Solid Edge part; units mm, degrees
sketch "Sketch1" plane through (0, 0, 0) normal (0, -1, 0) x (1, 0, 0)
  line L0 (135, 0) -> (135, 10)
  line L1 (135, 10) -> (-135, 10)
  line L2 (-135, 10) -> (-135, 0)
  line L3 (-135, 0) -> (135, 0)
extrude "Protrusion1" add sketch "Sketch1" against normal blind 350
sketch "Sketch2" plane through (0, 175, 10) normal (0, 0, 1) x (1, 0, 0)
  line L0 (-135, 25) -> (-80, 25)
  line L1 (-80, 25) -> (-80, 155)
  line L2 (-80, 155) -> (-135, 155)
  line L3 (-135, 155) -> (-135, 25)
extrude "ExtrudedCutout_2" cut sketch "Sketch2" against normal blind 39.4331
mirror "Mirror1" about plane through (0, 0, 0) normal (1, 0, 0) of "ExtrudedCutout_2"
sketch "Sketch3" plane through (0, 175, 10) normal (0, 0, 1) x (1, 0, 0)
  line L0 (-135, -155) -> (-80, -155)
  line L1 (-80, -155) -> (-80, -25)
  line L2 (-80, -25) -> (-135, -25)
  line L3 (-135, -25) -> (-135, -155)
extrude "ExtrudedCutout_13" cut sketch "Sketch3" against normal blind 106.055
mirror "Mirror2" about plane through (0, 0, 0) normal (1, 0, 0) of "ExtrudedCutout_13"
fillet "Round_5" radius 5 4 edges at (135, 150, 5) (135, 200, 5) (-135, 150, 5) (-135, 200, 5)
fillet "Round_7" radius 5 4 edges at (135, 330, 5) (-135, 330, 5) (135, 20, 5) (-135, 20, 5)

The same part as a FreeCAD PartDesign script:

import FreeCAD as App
import Part
import Sketcher
from FreeCAD import Vector
Q = App.Units.Quantity


def edges_at(feature, points):
    """Names of the edges that pass closest to the given points."""
    edges = feature.Shape.Edges
    near = lambda p: min(range(len(edges)), key=lambda i: edges[i].distToShape(Part.Vertex(*p))[0])
    return sorted({f"Edge{near(p) + 1}" for p in points})


def add_polygon(sketch, points):
    """Adds a closed chain of lines whose ends are joined by coincident constraints."""
    first, n = sketch.GeometryCount, len(points)
    for a, b in zip(points, points[1:] + points[:1]):
        sketch.addGeometry(Part.LineSegment(App.Vector(*a, 0), App.Vector(*b, 0)), False)
    for i in range(n):
        sketch.addConstraint(Sketcher.Constraint("Coincident", first + i, 2, first + (i + 1) % n, 1))

doc = App.newDocument("Part")
body = doc.addObject("PartDesign::Body", "Body")

sketch1 = body.newObject("Sketcher::SketchObject", "Sketch")
sketch1.AttachmentSupport = (doc.getObject("XZ_Plane"), [""])
sketch1.MapMode = "FlatFace"
add_polygon(sketch1, [(-135, 0), (135, 0), (135, 10), (-135, 10)])
sketch1.addConstraint([
    Sketcher.Constraint("Horizontal", 0),
    Sketcher.Constraint("Vertical", 1),
    Sketcher.Constraint("Horizontal", 2),
    Sketcher.Constraint("Vertical", 3),
    Sketcher.Constraint("Symmetric", 0, 2, 3, 2, -1, 1),
    Sketcher.Constraint("DistanceX", 0, 1, 0, 2, Q("270 mm")),
    Sketcher.Constraint("DistanceY", 1, 1, 1, 2, Q("10 mm")),
])
pad1 = body.newObject("PartDesign::Pad", "Pad")
pad1.Profile = sketch1
pad1.Length = 350
pad1.Reversed = True

sketch2 = body.newObject("Sketcher::SketchObject", "Sketch001")
sketch2.AttachmentSupport = (doc.getObject("XY_Plane"), [""])
sketch2.MapMode = "FlatFace"
sketch2.AttachmentOffset = App.Placement(Vector(0, 0, 10), App.Rotation())
add_polygon(sketch2, [(-135, 330), (-135, 200), (-80, 200), (-80, 330)])
sketch2.addConstraint([
    Sketcher.Constraint("Vertical", 0),
    Sketcher.Constraint("Horizontal", 1),
    Sketcher.Constraint("Vertical", 2),
    Sketcher.Constraint("Horizontal", 3),
    Sketcher.Constraint("DistanceX", 1, 1, 1, 2, Q("55 mm")),
    Sketcher.Constraint("DistanceY", 0, 2, 0, 1, Q("130 mm")),
    Sketcher.Constraint("DistanceX", 0, 2, -1, 1, Q("135 mm")),
    Sketcher.Constraint("DistanceY", -1, 1, 0, 2, Q("200 mm")),
])
pocket1 = body.newObject("PartDesign::Pocket", "Pocket")
pocket1.Profile = sketch2
pocket1.Length = 39.4331
doc.recompute()

mirrored = body.newObject("PartDesign::Mirrored", "Mirrored")
mirrored.Originals = [pocket1]
mirrored.MirrorPlane = (doc.getObject("YZ_Plane"), [""])
body.Tip = mirrored

sketch3 = body.newObject("Sketcher::SketchObject", "Sketch002")
sketch3.AttachmentSupport = (doc.getObject("XY_Plane"), [""])
sketch3.MapMode = "FlatFace"
sketch3.AttachmentOffset = App.Placement(Vector(0, 0, 10), App.Rotation())
add_polygon(sketch3, [(-135, 150), (-135, 20), (-80, 20), (-80, 150)])
sketch3.addConstraint([
    Sketcher.Constraint("Vertical", 0),
    Sketcher.Constraint("Horizontal", 1),
    Sketcher.Constraint("Vertical", 2),
    Sketcher.Constraint("Horizontal", 3),
    Sketcher.Constraint("DistanceX", 1, 1, 1, 2, Q("55 mm")),
    Sketcher.Constraint("DistanceY", 0, 2, 0, 1, Q("130 mm")),
    Sketcher.Constraint("DistanceX", 0, 2, -1, 1, Q("135 mm")),
    Sketcher.Constraint("DistanceY", -1, 1, 0, 2, Q("20 mm")),
])
pocket2 = body.newObject("PartDesign::Pocket", "Pocket001")
pocket2.Profile = sketch3
pocket2.Length = 106.055
doc.recompute()

mirrored2 = body.newObject("PartDesign::Mirrored", "Mirrored001")
mirrored2.Originals = [pocket2]
mirrored2.MirrorPlane = (doc.getObject("YZ_Plane"), [""])
body.Tip = mirrored2
doc.recompute()

fillet = body.newObject("PartDesign::Fillet", "Fillet")
fillet.Base = (mirrored2, edges_at(mirrored2, [
    (135, 150, 5),
    (135, 200, 5),
    (-135, 150, 5),
    (-135, 200, 5),
]))
fillet.Radius = 5
doc.recompute()

fillet2 = body.newObject("PartDesign::Fillet", "Fillet001")
fillet2.Base = (fillet, edges_at(fillet, [
    (135, 330, 5),
    (-135, 330, 5),
    (135, 20, 5),
    (-135, 20, 5),
]))
fillet2.Radius = 5

doc.recompute()
